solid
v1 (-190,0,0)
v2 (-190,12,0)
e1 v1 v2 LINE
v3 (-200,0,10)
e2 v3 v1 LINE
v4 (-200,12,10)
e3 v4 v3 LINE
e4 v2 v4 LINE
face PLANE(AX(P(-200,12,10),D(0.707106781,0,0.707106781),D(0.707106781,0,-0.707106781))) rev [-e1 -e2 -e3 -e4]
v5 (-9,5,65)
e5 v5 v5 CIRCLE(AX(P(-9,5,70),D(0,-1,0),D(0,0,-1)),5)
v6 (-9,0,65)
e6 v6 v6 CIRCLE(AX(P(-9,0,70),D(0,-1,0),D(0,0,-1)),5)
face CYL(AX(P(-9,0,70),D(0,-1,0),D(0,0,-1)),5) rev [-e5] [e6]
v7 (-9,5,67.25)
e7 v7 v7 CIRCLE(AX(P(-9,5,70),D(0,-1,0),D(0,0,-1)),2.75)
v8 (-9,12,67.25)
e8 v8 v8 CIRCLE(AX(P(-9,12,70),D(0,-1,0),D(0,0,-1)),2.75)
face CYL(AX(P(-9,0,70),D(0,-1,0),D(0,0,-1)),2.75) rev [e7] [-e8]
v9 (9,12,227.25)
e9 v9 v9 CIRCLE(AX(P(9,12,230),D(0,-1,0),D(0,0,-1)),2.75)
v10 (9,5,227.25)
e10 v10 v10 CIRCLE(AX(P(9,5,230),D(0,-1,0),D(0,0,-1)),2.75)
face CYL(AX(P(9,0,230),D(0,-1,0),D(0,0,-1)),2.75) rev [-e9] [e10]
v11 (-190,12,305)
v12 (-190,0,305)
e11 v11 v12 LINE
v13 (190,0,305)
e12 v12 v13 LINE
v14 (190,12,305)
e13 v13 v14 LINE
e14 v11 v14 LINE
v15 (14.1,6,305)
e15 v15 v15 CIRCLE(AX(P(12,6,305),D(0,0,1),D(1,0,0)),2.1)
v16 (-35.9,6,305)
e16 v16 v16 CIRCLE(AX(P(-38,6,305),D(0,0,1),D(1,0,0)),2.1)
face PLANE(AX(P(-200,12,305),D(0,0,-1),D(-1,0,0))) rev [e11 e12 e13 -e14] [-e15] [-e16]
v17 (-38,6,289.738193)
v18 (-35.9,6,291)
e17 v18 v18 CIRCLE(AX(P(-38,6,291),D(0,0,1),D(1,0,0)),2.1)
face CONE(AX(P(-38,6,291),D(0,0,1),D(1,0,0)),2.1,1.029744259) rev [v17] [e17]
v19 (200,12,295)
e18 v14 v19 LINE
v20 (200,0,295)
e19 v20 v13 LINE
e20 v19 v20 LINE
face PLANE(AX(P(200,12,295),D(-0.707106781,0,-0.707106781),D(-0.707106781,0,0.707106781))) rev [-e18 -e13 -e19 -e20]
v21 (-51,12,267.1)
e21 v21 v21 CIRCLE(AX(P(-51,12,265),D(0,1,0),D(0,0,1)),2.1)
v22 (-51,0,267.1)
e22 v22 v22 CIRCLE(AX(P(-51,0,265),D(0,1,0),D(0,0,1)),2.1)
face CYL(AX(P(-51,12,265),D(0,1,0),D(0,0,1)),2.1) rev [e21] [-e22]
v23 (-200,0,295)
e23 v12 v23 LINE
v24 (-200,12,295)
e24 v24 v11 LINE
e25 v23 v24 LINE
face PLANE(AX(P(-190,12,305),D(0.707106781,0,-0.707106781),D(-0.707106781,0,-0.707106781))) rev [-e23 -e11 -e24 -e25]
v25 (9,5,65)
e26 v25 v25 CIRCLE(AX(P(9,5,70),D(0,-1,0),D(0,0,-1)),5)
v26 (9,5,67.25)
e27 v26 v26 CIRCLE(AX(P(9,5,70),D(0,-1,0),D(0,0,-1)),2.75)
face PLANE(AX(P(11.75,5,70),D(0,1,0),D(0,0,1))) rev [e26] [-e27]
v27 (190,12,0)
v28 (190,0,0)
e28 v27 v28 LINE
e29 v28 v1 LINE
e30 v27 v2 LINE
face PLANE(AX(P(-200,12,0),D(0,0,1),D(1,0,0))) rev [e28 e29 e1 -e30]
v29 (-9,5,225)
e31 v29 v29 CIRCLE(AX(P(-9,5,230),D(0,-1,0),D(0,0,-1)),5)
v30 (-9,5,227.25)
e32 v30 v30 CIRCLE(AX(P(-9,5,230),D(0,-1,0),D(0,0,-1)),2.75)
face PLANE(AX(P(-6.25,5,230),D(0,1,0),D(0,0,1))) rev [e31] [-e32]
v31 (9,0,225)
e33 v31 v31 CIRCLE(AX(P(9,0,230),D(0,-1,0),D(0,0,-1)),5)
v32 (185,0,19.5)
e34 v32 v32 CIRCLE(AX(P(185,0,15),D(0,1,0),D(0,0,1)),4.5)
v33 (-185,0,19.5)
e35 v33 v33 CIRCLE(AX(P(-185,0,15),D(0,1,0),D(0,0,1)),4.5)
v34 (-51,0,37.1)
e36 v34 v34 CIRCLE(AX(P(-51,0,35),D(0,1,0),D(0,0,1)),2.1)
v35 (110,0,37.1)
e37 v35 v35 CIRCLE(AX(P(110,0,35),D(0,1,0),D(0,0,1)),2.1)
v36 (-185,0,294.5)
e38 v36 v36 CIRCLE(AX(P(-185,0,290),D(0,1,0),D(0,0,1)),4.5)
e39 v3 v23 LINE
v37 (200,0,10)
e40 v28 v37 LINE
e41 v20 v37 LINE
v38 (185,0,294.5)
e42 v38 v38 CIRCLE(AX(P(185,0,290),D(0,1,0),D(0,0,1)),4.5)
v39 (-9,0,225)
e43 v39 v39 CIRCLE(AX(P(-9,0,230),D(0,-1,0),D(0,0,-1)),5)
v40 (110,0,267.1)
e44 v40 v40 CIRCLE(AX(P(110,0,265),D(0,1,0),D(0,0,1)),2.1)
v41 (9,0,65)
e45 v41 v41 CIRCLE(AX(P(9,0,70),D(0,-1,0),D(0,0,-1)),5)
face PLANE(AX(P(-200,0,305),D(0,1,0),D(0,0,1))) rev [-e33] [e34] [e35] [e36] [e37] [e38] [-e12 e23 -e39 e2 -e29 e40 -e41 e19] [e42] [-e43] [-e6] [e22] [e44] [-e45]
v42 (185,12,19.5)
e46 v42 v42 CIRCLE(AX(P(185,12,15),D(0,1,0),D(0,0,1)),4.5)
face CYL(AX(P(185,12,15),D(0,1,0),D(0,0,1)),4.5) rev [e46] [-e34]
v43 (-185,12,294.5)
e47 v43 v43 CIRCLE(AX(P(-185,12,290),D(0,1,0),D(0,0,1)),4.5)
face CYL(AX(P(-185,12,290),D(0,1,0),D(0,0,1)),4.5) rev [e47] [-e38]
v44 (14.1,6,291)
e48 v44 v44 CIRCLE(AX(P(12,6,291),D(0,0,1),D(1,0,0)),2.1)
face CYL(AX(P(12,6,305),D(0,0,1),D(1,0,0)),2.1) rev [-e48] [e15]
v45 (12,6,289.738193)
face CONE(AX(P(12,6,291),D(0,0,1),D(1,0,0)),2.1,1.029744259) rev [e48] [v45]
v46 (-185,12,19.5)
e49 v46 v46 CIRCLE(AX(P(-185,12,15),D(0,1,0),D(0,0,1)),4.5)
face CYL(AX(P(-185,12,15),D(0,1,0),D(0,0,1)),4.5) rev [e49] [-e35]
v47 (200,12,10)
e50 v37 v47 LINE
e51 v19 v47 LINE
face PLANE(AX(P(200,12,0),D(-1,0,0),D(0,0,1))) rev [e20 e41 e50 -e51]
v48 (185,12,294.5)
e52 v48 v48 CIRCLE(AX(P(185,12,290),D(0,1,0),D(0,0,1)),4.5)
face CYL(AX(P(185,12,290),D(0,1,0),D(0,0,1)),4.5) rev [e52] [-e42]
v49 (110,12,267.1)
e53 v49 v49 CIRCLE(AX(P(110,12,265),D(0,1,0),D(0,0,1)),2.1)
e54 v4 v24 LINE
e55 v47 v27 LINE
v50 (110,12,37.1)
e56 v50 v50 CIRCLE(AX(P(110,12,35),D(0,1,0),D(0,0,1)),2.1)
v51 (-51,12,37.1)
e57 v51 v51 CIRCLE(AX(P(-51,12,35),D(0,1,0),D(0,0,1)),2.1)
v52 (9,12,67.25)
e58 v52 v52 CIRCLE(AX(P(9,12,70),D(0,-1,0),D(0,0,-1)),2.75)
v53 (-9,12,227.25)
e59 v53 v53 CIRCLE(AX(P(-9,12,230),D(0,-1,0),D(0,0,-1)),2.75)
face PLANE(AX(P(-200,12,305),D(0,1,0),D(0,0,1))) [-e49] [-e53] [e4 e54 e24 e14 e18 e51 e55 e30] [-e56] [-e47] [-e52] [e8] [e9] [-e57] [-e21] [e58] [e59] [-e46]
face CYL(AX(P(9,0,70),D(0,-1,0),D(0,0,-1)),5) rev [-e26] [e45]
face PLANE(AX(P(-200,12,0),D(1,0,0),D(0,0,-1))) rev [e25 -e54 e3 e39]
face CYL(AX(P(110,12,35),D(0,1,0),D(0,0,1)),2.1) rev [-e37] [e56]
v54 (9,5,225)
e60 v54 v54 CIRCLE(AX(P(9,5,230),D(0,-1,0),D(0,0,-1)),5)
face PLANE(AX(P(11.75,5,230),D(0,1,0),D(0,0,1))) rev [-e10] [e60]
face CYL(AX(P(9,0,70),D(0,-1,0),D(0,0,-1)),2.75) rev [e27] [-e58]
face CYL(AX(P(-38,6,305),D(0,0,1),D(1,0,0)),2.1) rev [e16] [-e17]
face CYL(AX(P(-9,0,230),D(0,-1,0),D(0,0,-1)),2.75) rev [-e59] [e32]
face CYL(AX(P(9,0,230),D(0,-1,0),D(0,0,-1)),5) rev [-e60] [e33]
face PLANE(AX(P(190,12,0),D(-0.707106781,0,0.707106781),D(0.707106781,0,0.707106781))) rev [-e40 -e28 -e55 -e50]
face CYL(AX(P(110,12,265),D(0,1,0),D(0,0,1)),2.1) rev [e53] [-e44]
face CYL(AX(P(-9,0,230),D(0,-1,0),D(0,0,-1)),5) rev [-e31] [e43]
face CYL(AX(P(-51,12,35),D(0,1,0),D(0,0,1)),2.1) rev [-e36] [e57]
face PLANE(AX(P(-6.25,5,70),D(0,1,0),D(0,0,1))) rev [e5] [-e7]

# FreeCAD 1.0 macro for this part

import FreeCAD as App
import Part
import Sketcher
from FreeCAD import Vector


def edges_at(feature, points):
    """Names of the edges that pass closest to the given points."""
    edges = feature.Shape.Edges
    near = lambda p: min(range(len(edges)), key=lambda i: edges[i].distToShape(Part.Vertex(*p))[0])
    return sorted({f"Edge{near(p) + 1}" for p in points})

doc = App.newDocument("Part")
body = doc.addObject("PartDesign::Body", "Body")

# Sketch on XZ plane
sketch1 = doc.addObject("Sketcher::SketchObject", "Sketch")
body.addObject(sketch1)
sketch1.AttachmentSupport = (doc.XZ_Plane, [""])
sketch1.MapMode = "FlatFace"
sketch1.addGeometry([
    Part.LineSegment(Vector(-200, 0, 0), Vector(-200, 305, 0)),
    Part.LineSegment(Vector(-200, 305, 0), Vector(200, 305, 0)),
    Part.LineSegment(Vector(200, 305, 0), Vector(200, 0, 0)),
    Part.LineSegment(Vector(200, 0, 0), Vector(-200, 0, 0)),
], False)
sketch1.addConstraint([
    Sketcher.Constraint("Coincident", 0, 2, 1, 1),
    Sketcher.Constraint("Coincident", 1, 2, 2, 1),
    Sketcher.Constraint("Coincident", 2, 2, 3, 1),
    Sketcher.Constraint("Coincident", 3, 2, 0, 1),
    Sketcher.Constraint("Vertical", 0),
    Sketcher.Constraint("Horizontal", 1),
    Sketcher.Constraint("Vertical", 2),
    Sketcher.Constraint("Horizontal", 3),
    Sketcher.Constraint("Symmetric", 2, 2, 3, 2, -1, 1),
    Sketcher.Constraint("DistanceX", 1, 1, 1, 2, 400.0),
    Sketcher.Constraint("DistanceY", 0, 1, 0, 2, 305.0),
])
pad1 = doc.addObject("PartDesign::Pad", "Pad")
body.addObject(pad1)
pad1.Profile = sketch1
pad1.Length = 12
pad1.Reversed = True

# Sketch on XZ plane
sketch2 = doc.addObject("Sketcher::SketchObject", "Sketch001")
body.addObject(sketch2)
sketch2.AttachmentSupport = (doc.XZ_Plane, [""])
sketch2.MapMode = "FlatFace"
sketch2.addGeometry([
    Part.Circle(Vector(-9, 230, 0), Vector(0, 0, 1), 2.8),
    Part.Circle(Vector(-9, 70, 0), Vector(0, 0, 1), 2.8),
    Part.Circle(Vector(9, 70, 0), Vector(0, 0, 1), 2.8),
    Part.Circle(Vector(9, 230, 0), Vector(0, 0, 1), 2.8),
], False)
sketch2.addConstraint([
    Sketcher.Constraint("Equal", 0, 1),
    Sketcher.Constraint("Equal", 1, 2),
    Sketcher.Constraint("Equal", 2, 3),
    Sketcher.Constraint("Symmetric", 1, 3, 2, 3, -2),
    Sketcher.Constraint("Symmetric", 0, 3, 3, 3, -2),
    Sketcher.Constraint("Vertical", 0, 3, 1, 3),
    Sketcher.Constraint("Diameter", 0, 5.5),
    Sketcher.Constraint("DistanceX", 0, 3, -1, 1, 9.0),
    Sketcher.Constraint("DistanceY", -1, 1, 0, 3, 230.0),
    Sketcher.Constraint("DistanceY", -1, 1, 1, 3, 70.0),
])
doc.recompute()
hole = doc.addObject("PartDesign::Hole", "Hole")
body.addObject(hole)
hole.Profile = sketch2
hole.ThreadType = "None"
hole.Diameter = 5.5
hole.DepthType = "ThroughAll"
hole.HoleCutType = "Counterbore"
hole.HoleCutDiameter = 10
hole.HoleCutDepth = 5

# Sketch on XY plane
sketch3 = doc.addObject("Sketcher::SketchObject", "Sketch002")
body.addObject(sketch3)
sketch3.AttachmentSupport = (doc.XY_Plane, [""])
sketch3.MapMode = "FlatFace"
sketch3.AttachmentOffset = App.Placement(Vector(0, 0, 305), App.Rotation())
sketch3.addGeometry([
    Part.Circle(Vector(-38, 6, 0), Vector(0, 0, 1), 2.1),
    Part.Circle(Vector(12, 6, 0), Vector(0, 0, 1), 2.1),
], False)
sketch3.addConstraint([
    Sketcher.Constraint("Equal", 0, 1),
    Sketcher.Constraint("Horizontal", 0, 3, 1, 3),
    Sketcher.Constraint("Diameter", 0, 4.2),
    Sketcher.Constraint("DistanceX", 0, 3, -1, 1, 38.0),
    Sketcher.Constraint("DistanceY", -1, 1, 0, 3, 6.0),
    Sketcher.Constraint("DistanceX", -1, 1, 1, 3, 12.0),
])
doc.recompute()
hole2 = doc.addObject("PartDesign::Hole", "Hole001")
body.addObject(hole2)
hole2.Profile = sketch3
hole2.ThreadType = "None"
hole2.Diameter = 4.2
hole2.DepthType = "Dimension"
hole2.Depth = 14
hole2.DrillPoint = "Angled"
hole2.DrillPointAngle = 118
doc.recompute()

chamfer = doc.addObject("PartDesign::Chamfer", "Chamfer")
body.addObject(chamfer)
chamfer.Base = (hole2, edges_at(hole2, [
    (-200, 6, 0),
    (200, 6, 0),
    (200, 6, 305),
    (-200, 6, 305),
]))
chamfer.Size = 10

# Sketch on XZ plane
sketch4 = doc.addObject("Sketcher::SketchObject", "Sketch003")
body.addObject(sketch4)
sketch4.AttachmentSupport = (doc.XZ_Plane, [""])
sketch4.MapMode = "FlatFace"
sketch4.AttachmentOffset = App.Placement(Vector(0, 0, -12), App.Rotation())
sketch4.addGeometry([
    Part.Circle(Vector(-185, 290, 0), Vector(0, 0, 1), 4.5),
    Part.Circle(Vector(-185, 15, 0), Vector(0, 0, 1), 4.5),
    Part.Circle(Vector(185, 15, 0), Vector(0, 0, 1), 4.5),
    Part.Circle(Vector(185, 290, 0), Vector(0, 0, 1), 4.5),
], False)
sketch4.addConstraint([
    Sketcher.Constraint("Equal", 0, 1),
    Sketcher.Constraint("Equal", 1, 2),
    Sketcher.Constraint("Equal", 2, 3),
    Sketcher.Constraint("Symmetric", 1, 3, 2, 3, -2),
    Sketcher.Constraint("Symmetric", 0, 3, 3, 3, -2),
    Sketcher.Constraint("Vertical", 0, 3, 1, 3),
    Sketcher.Constraint("Diameter", 0, 9.0),
    Sketcher.Constraint("DistanceX", 0, 3, -1, 1, 185.0),
    Sketcher.Constraint("DistanceY", -1, 1, 0, 3, 290.0),
    Sketcher.Constraint("DistanceY", -1, 1, 1, 3, 15.0),
])
doc.recompute()
hole3 = doc.addObject("PartDesign::Hole", "Hole002")
body.addObject(hole3)
hole3.Profile = sketch4
hole3.ThreadType = "None"
hole3.Diameter = 9
hole3.DepthType = "ThroughAll"
hole3.Reversed = True

# Sketch on XZ plane
sketch5 = doc.addObject("Sketcher::SketchObject", "Sketch004")
body.addObject(sketch5)
sketch5.AttachmentSupport = (doc.XZ_Plane, [""])
sketch5.MapMode = "FlatFace"
sketch5.AttachmentOffset = App.Placement(Vector(0, 0, -12), App.Rotation())
sketch5.addGeometry([
    Part.Circle(Vector(-51, 265, 0), Vector(0, 0, 1), 2.1),
    Part.Circle(Vector(-51, 35, 0), Vector(0, 0, 1), 2.1),
    Part.Circle(Vector(110, 265, 0), Vector(0, 0, 1), 2.1),
    Part.Circle(Vector(110, 35, 0), Vector(0, 0, 1), 2.1),
], False)
sketch5.addConstraint([
    Sketcher.Constraint("Equal", 0, 1),
    Sketcher.Constraint("Equal", 1, 2),
    Sketcher.Constraint("Equal", 2, 3),
    Sketcher.Constraint("Horizontal", 0, 3, 2, 3),
    Sketcher.Constraint("Horizontal", 1, 3, 3, 3),
    Sketcher.Constraint("Vertical", 0, 3, 1, 3),
    Sketcher.Constraint("Vertical", 2, 3, 3, 3),
    Sketcher.Constraint("Diameter", 0, 4.2),
    Sketcher.Constraint("DistanceX", 0, 3, -1, 1, 51.0),
    Sketcher.Constraint("DistanceY", -1, 1, 0, 3, 265.0),
    Sketcher.Constraint("DistanceY", -1, 1, 1, 3, 35.0),
    Sketcher.Constraint("DistanceX", -1, 1, 2, 3, 110.0),
])
doc.recompute()
hole4 = doc.addObject("PartDesign::Hole", "Hole003")
body.addObject(hole4)
hole4.Profile = sketch5
hole4.ThreadType = "None"
hole4.Diameter = 4.2
hole4.DepthType = "ThroughAll"
hole4.Reversed = True

doc.recompute()
